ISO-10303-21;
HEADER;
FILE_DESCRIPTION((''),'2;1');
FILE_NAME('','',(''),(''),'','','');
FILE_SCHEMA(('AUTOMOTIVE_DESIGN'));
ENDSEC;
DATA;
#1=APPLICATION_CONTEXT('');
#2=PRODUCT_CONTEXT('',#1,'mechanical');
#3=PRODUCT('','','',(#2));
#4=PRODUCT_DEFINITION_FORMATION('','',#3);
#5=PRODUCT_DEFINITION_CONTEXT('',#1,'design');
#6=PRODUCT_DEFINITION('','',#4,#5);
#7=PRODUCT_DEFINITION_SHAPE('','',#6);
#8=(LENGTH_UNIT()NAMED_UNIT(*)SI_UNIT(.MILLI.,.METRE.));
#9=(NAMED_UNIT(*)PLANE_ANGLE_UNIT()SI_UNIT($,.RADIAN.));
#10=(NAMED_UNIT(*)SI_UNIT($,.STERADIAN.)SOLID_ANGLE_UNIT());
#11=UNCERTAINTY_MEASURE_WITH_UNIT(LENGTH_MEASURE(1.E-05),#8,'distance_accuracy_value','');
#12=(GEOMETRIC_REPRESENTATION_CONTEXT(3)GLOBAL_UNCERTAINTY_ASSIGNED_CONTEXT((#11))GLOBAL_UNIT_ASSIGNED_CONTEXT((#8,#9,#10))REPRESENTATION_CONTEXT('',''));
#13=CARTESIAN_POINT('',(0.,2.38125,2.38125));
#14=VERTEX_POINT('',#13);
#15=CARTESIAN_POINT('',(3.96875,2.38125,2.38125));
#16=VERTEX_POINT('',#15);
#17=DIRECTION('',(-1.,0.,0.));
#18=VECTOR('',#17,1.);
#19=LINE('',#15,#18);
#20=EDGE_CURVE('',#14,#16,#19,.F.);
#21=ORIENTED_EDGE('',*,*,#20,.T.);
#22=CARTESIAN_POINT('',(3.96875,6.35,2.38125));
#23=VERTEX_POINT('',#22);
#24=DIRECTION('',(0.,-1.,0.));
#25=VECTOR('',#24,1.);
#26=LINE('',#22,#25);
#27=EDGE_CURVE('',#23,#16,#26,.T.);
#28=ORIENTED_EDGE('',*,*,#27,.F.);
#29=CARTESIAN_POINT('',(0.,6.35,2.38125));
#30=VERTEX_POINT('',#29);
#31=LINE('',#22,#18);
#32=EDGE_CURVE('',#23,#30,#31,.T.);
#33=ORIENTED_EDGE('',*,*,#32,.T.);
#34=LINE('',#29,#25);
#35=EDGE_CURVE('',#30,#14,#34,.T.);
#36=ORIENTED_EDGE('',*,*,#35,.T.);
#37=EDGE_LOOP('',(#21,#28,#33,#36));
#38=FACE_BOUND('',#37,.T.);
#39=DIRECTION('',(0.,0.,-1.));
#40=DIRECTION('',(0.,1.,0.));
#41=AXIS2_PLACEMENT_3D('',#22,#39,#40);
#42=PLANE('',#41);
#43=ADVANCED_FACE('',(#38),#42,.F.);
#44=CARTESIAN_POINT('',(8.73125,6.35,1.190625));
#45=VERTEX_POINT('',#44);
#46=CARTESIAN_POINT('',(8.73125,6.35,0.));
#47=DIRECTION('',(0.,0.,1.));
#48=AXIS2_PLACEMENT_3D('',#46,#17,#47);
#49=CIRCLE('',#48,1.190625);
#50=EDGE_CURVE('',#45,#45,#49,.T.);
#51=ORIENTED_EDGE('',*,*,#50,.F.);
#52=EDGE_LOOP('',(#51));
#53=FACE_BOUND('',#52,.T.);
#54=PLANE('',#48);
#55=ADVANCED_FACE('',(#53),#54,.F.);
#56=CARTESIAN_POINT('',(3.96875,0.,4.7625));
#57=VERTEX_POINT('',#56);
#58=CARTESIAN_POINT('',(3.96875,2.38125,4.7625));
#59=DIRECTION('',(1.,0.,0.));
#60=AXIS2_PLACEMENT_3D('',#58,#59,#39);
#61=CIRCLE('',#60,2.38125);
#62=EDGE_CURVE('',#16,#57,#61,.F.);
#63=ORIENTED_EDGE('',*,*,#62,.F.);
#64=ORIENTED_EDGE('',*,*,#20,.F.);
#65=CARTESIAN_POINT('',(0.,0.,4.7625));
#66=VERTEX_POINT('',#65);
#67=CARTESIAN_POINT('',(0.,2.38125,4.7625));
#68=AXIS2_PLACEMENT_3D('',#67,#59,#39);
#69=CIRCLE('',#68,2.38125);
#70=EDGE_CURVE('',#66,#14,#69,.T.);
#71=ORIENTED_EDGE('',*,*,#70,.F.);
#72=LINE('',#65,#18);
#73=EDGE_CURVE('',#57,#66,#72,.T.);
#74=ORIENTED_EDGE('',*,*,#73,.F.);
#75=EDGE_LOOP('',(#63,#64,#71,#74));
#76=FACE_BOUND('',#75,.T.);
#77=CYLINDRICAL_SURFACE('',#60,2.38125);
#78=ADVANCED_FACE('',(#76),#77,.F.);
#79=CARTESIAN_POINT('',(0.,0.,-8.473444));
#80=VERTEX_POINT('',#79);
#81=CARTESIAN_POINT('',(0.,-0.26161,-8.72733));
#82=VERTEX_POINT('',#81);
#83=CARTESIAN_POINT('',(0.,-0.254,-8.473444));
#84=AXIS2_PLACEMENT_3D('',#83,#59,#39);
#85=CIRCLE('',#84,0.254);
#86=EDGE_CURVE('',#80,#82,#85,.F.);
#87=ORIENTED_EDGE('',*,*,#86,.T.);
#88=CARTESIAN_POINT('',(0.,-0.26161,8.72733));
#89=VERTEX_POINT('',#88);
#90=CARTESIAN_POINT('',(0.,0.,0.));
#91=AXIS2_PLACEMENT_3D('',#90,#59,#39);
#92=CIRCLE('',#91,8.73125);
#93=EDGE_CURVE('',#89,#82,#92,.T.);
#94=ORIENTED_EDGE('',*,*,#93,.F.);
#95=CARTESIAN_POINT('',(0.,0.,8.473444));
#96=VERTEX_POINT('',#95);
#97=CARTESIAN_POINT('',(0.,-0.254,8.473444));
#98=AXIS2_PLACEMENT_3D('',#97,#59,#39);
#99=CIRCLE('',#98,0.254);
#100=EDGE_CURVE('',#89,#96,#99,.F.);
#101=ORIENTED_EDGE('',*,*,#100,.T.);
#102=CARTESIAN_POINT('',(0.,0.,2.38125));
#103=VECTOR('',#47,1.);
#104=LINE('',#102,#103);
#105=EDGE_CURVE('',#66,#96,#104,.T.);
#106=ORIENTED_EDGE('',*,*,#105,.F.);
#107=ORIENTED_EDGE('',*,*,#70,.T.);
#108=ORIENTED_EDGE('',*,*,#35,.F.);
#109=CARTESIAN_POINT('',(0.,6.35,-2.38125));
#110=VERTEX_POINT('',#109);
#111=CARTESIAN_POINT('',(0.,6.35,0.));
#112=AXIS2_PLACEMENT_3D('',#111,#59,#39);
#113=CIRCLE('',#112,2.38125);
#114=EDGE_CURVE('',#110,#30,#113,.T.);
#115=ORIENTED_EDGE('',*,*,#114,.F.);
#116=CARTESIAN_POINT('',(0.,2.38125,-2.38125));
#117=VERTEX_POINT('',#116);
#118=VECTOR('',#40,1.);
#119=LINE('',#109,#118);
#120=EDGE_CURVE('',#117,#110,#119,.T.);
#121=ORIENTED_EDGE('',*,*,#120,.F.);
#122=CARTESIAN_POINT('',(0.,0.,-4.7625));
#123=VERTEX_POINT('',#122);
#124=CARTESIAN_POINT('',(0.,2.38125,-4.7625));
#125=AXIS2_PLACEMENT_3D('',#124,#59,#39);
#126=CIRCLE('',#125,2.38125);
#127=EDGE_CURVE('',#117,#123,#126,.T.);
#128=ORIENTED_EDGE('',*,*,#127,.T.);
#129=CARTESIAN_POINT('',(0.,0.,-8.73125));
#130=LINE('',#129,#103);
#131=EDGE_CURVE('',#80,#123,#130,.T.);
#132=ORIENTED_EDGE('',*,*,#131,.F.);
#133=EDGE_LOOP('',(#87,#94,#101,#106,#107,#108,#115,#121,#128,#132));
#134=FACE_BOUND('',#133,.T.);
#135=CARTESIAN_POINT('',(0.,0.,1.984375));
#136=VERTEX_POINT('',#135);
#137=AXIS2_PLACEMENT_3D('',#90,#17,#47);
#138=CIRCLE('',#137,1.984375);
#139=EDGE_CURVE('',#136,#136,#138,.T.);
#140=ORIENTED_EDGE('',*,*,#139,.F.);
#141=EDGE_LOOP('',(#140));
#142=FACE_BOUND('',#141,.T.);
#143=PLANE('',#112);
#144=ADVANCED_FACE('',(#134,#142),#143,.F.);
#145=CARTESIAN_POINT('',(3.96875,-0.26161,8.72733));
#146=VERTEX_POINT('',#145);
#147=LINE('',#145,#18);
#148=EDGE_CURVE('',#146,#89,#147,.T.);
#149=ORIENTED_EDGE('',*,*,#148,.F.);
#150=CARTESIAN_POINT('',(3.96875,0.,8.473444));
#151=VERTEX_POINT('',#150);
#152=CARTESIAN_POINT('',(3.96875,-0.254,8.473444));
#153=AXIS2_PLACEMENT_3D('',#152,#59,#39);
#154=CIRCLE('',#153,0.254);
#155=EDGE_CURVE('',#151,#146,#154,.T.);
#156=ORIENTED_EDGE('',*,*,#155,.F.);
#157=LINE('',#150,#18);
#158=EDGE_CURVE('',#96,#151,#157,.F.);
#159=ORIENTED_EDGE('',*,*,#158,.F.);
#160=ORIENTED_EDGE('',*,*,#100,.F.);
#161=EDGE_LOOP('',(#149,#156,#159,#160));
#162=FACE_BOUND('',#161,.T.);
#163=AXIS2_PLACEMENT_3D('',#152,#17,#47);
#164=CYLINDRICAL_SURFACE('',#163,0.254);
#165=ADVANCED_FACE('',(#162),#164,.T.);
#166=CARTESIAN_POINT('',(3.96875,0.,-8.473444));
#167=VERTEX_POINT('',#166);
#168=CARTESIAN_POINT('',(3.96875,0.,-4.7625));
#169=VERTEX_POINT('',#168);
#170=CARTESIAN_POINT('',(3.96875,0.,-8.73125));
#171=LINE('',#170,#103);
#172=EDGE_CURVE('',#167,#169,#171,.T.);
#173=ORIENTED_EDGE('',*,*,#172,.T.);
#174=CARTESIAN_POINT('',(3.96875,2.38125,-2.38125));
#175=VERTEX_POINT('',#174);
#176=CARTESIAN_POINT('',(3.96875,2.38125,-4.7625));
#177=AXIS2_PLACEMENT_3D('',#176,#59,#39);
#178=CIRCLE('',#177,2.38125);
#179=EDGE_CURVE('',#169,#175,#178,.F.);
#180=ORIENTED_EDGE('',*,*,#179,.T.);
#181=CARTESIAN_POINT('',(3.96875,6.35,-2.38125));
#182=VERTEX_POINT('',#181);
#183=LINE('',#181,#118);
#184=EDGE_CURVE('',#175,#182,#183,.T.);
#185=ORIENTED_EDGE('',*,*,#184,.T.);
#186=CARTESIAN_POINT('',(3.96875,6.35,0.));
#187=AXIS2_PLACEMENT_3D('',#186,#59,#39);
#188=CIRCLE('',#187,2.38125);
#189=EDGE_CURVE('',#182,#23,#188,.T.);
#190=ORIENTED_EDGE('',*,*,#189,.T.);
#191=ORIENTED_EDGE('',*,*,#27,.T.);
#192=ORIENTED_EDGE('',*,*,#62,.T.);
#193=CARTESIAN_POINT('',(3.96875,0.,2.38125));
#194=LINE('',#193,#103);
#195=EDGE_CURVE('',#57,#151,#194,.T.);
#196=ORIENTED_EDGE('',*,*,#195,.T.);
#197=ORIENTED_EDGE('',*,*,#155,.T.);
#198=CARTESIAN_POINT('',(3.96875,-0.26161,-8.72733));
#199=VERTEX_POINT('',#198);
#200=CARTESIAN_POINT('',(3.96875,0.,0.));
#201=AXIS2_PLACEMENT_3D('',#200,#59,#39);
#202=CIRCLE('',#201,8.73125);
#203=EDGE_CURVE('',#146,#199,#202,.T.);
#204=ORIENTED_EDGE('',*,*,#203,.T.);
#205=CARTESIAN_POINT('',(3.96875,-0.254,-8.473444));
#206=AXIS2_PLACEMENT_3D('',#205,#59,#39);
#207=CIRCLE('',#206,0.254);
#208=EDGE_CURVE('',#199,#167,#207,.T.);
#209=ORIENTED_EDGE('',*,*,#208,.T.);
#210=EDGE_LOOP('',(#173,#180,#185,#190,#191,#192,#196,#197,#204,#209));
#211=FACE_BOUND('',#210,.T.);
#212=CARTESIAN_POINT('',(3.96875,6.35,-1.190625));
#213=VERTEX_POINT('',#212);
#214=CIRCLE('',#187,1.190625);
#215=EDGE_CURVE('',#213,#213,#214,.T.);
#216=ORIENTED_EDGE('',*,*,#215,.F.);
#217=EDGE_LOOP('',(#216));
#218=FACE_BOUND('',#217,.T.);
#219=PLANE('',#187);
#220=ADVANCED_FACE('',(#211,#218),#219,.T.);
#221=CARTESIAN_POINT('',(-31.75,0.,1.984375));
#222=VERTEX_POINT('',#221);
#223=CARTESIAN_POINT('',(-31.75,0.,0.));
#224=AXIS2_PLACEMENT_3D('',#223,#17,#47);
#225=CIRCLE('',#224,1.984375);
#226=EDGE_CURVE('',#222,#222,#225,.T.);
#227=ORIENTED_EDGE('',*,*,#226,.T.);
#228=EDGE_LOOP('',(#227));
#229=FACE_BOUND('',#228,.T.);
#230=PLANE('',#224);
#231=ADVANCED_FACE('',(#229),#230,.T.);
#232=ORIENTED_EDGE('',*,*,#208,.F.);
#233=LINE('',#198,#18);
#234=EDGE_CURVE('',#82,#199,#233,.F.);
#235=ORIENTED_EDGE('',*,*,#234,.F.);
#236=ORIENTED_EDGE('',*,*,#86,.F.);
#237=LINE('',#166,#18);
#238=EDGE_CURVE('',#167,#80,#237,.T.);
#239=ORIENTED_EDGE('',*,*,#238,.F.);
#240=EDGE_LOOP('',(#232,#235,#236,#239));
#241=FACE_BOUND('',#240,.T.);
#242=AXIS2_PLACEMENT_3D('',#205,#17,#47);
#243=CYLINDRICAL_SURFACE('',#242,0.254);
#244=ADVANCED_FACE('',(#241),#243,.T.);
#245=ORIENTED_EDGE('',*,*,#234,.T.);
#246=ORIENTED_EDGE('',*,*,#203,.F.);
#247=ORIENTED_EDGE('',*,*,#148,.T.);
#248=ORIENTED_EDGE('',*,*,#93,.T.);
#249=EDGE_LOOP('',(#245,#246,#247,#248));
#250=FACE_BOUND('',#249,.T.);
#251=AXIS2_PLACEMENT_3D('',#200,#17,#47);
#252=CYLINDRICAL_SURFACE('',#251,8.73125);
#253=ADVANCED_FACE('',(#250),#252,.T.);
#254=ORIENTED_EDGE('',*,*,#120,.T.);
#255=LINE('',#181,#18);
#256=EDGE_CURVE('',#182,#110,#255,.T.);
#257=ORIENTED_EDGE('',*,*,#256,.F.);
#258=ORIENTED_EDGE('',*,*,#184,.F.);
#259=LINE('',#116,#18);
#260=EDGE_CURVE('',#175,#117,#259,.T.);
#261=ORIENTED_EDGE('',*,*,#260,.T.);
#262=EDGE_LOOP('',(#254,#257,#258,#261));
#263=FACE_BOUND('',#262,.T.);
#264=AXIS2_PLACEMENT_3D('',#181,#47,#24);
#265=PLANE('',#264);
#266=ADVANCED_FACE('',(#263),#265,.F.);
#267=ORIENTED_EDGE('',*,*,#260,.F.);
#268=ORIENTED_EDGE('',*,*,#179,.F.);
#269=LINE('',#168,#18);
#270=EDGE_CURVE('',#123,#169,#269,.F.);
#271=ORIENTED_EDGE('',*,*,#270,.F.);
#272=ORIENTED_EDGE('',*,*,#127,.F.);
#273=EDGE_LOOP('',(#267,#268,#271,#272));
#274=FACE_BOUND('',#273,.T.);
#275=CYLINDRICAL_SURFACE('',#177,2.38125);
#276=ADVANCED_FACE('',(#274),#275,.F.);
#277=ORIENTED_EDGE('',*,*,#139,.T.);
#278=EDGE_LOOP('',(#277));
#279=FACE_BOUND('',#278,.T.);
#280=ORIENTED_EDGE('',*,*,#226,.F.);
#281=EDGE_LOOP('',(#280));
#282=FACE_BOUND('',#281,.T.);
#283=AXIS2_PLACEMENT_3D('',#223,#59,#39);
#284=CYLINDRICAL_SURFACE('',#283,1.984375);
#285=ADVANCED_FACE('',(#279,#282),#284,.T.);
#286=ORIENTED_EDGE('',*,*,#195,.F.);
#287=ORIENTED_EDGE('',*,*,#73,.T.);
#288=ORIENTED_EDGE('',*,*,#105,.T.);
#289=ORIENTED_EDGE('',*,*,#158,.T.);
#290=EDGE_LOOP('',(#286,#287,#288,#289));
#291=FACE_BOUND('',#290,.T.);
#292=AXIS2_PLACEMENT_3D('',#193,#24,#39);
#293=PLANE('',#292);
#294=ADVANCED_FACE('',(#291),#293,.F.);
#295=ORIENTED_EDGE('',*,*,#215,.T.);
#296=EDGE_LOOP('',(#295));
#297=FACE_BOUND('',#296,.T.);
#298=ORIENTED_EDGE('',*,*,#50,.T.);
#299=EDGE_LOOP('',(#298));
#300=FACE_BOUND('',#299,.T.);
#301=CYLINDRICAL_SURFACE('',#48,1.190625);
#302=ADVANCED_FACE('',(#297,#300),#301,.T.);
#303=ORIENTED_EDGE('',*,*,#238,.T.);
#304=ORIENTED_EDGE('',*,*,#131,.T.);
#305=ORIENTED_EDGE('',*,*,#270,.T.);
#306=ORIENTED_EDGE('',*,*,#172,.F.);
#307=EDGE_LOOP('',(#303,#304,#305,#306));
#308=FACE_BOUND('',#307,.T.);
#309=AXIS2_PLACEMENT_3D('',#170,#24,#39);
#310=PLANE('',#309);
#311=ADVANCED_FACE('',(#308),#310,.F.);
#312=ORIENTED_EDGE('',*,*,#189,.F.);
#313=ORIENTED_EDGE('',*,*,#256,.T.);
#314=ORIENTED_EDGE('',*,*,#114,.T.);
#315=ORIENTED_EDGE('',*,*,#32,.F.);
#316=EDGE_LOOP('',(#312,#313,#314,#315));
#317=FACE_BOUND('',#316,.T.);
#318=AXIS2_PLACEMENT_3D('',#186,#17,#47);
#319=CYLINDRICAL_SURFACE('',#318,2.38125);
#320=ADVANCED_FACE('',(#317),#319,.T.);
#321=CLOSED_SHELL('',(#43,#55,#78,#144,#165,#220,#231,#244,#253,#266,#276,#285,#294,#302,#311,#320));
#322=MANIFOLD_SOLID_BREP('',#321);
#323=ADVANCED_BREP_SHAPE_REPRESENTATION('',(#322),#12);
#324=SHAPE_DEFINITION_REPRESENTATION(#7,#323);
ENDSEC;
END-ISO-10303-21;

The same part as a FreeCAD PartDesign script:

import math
import FreeCAD as App
import Part
import Sketcher

V = App.Vector
Q = App.Units.Quantity


def edges_at(feature, points):
    """Names of the edges that pass closest to the given points."""
    edges = feature.Shape.Edges
    near = lambda p: min(range(len(edges)), key=lambda i: edges[i].distToShape(Part.Vertex(*p))[0])
    return sorted({f"Edge{near(p) + 1}" for p in points})

doc = App.newDocument("Part")
params = doc.addObject("Spreadsheet::Sheet", "Params")
for row, (alias, value) in enumerate([
    ("sketch1_diameter", "0.15625 in"),
    ("sketch1_diameter2", "0.09375 in"),
    ("sketch1_radius", "0.09375 in"),
    ("sketch1_radius2", "0.34375 in"),
    ("pad1_length", "0.15625 in"),
    ("sketch2_diameter", "0.09375 in"),
    ("pad2_length", "0.34375 in"),
    ("sketch3_diameter", "0.15625 in"),
    ("pad3_length", "1.25 in"),
    ("sketch4_diameter", "0.15625 in"),
    ("pad4_length", "0.15625 in"),
    ("fillet_radius", "0.09375 in"),
    ("fillet2_radius", "0.01 in"),
], start=1):
    params.set(f"A{row}", alias)
    params.set(f"B{row}", "=" + value)
    params.setAlias(f"B{row}", alias)

body = doc.addObject("PartDesign::Body", "Body")

# Sketch on YZ plane
sketch1 = body.newObject("Sketcher::SketchObject", "Sketch")
sketch1.AttachmentSupport = (doc.getObject("YZ_Plane"), [""])
sketch1.MapMode = "FlatFace"
sketch1.addGeometry([
    Part.LineSegment(V(0, -8.7, 0), V(0, -2.4, 0)),  # 0
    Part.LineSegment(V(0, -2.4, 0), V(6.3, -2.4, 0)),  # 1
    Part.ArcOfCircle(Part.Circle(V(6.3, 0, 0), V(0, 0, 1), 2.4), math.radians(-90), math.radians(90)),  # 2
    Part.LineSegment(V(6.3, 2.4, 0), V(0, 2.4, 0)),  # 3
    Part.LineSegment(V(0, 2.4, 0), V(0, 8.7, 0)),  # 4
    Part.ArcOfCircle(Part.Circle(V(0, 0, 0), V(0, 0, 1), 8.7), math.radians(90), math.radians(270)),  # 5
    Part.Circle(V(0, 0, 0), V(0, 0, 1), 2),  # 6
    Part.Circle(V(6.3, 0, 0), V(0, 0, 1), 1.2),  # 7
], False)
sketch1.addConstraint([
    Sketcher.Constraint("Coincident", 0, 2, 1, 1),
    Sketcher.Constraint("Tangent", 1, 2, 2, 1),
    Sketcher.Constraint("Tangent", 2, 2, 3, 1),
    Sketcher.Constraint("Coincident", 3, 2, 4, 1),
    Sketcher.Constraint("Coincident", 4, 2, 5, 1),
    Sketcher.Constraint("Coincident", 5, 2, 0, 1),
    Sketcher.Constraint("Vertical", 0),
    Sketcher.Constraint("Horizontal", 1),
    Sketcher.Constraint("Horizontal", 3),
    Sketcher.Constraint("Vertical", 4),
    Sketcher.Constraint("Coincident", 5, 3, -1, 1),
    Sketcher.Constraint("Coincident", 6, 3, -1, 1),
    Sketcher.Constraint("Coincident", 7, 3, 2, 3),
    Sketcher.Constraint("Symmetric", 0, 2, 3, 2, -1, 1),
    Sketcher.Constraint("PointOnObject", 0, 2, -2),
    Sketcher.Constraint("Equal", 3, 0),
    Sketcher.Constraint("Diameter", 6, Q("0.15625 in")),
    Sketcher.Constraint("Diameter", 7, Q("0.09375 in")),
    Sketcher.Constraint("Radius", 2, Q("0.09375 in")),
    Sketcher.Constraint("Radius", 5, Q("0.34375 in")),
])
sketch1.setExpression("Constraints[16]", "Params.sketch1_diameter")
sketch1.setExpression("Constraints[17]", "Params.sketch1_diameter2")
sketch1.setExpression("Constraints[18]", "Params.sketch1_radius")
sketch1.setExpression("Constraints[19]", "Params.sketch1_radius2")
pad1 = body.newObject("PartDesign::Pad", "Pad")
pad1.Profile = sketch1
pad1.setExpression("Length", "Params.pad1_length")

# Sketch on YZ plane
sketch2 = body.newObject("Sketcher::SketchObject", "Sketch001")
sketch2.AttachmentSupport = (doc.getObject("YZ_Plane"), [""])
sketch2.MapMode = "FlatFace"
sketch2.addGeometry(Part.Circle(V(6.3, 0, 0), V(0, 0, 1), 1.2), False)
sketch2.addConstraint([
    Sketcher.Constraint("PointOnObject", 0, 3, -1),
    Sketcher.Constraint("Diameter", 0, Q("0.09375 in")),
    Sketcher.Constraint("DistanceX", -1, 1, 0, 3, Q("0.25 in")),
])
sketch2.setExpression("Constraints[1]", "Params.sketch2_diameter")
pad2 = body.newObject("PartDesign::Pad", "Pad001")
pad2.Profile = sketch2
pad2.setExpression("Length", "Params.pad2_length")
body2 = doc.addObject("PartDesign::Body", "Body001")

# Sketch on YZ plane
sketch3 = body2.newObject("Sketcher::SketchObject", "Sketch002")
sketch3.AttachmentSupport = (doc.getObject("YZ_Plane001"), [""])
sketch3.MapMode = "FlatFace"
sketch3.addGeometry(Part.Circle(V(0, 0, 0), V(0, 0, 1), 2), False)
sketch3.addConstraint([
    Sketcher.Constraint("Coincident", 0, 3, -1, 1),
    Sketcher.Constraint("Diameter", 0, Q("0.15625 in")),
])
sketch3.setExpression("Constraints[1]", "Params.sketch3_diameter")
pad3 = body2.newObject("PartDesign::Pad", "Pad002")
pad3.Profile = sketch3
pad3.setExpression("Length", "Params.pad3_length")
pad3.Reversed = True
body.AllowCompound = True
doc.recompute()

boolean = body.newObject("PartDesign::Boolean", "Boolean")
boolean.Type = "Fuse"
boolean.addObjects([body2])

# Sketch on YZ plane
sketch4 = body.newObject("Sketcher::SketchObject", "Sketch003")
sketch4.AttachmentSupport = (doc.getObject("YZ_Plane"), [""])
sketch4.MapMode = "FlatFace"
sketch4.addGeometry(Part.Circle(V(0, 0, 0), V(0, 0, 1), 2), False)
sketch4.addConstraint([
    Sketcher.Constraint("Coincident", 0, 3, -1, 1),
    Sketcher.Constraint("Diameter", 0, Q("0.15625 in")),
])
sketch4.setExpression("Constraints[1]", "Params.sketch4_diameter")
pad4 = body.newObject("PartDesign::Pad", "Pad003")
pad4.Profile = sketch4
pad4.setExpression("Length", "Params.pad4_length")
doc.recompute()

fillet = body.newObject("PartDesign::Fillet", "Fillet")
fillet.Base = (pad4, edges_at(pad4, [(1.984, 0, -2.381), (1.984, 0, 2.381)]))
fillet.setExpression("Radius", "Params.fillet_radius")
doc.recompute()

fillet2 = body.newObject("PartDesign::Fillet", "Fillet001")
fillet2.Base = (fillet, edges_at(fillet, [(1.984, 0, -8.731), (1.984, 0, 8.731)]))
fillet2.setExpression("Radius", "Params.fillet2_radius")

doc.recompute()
